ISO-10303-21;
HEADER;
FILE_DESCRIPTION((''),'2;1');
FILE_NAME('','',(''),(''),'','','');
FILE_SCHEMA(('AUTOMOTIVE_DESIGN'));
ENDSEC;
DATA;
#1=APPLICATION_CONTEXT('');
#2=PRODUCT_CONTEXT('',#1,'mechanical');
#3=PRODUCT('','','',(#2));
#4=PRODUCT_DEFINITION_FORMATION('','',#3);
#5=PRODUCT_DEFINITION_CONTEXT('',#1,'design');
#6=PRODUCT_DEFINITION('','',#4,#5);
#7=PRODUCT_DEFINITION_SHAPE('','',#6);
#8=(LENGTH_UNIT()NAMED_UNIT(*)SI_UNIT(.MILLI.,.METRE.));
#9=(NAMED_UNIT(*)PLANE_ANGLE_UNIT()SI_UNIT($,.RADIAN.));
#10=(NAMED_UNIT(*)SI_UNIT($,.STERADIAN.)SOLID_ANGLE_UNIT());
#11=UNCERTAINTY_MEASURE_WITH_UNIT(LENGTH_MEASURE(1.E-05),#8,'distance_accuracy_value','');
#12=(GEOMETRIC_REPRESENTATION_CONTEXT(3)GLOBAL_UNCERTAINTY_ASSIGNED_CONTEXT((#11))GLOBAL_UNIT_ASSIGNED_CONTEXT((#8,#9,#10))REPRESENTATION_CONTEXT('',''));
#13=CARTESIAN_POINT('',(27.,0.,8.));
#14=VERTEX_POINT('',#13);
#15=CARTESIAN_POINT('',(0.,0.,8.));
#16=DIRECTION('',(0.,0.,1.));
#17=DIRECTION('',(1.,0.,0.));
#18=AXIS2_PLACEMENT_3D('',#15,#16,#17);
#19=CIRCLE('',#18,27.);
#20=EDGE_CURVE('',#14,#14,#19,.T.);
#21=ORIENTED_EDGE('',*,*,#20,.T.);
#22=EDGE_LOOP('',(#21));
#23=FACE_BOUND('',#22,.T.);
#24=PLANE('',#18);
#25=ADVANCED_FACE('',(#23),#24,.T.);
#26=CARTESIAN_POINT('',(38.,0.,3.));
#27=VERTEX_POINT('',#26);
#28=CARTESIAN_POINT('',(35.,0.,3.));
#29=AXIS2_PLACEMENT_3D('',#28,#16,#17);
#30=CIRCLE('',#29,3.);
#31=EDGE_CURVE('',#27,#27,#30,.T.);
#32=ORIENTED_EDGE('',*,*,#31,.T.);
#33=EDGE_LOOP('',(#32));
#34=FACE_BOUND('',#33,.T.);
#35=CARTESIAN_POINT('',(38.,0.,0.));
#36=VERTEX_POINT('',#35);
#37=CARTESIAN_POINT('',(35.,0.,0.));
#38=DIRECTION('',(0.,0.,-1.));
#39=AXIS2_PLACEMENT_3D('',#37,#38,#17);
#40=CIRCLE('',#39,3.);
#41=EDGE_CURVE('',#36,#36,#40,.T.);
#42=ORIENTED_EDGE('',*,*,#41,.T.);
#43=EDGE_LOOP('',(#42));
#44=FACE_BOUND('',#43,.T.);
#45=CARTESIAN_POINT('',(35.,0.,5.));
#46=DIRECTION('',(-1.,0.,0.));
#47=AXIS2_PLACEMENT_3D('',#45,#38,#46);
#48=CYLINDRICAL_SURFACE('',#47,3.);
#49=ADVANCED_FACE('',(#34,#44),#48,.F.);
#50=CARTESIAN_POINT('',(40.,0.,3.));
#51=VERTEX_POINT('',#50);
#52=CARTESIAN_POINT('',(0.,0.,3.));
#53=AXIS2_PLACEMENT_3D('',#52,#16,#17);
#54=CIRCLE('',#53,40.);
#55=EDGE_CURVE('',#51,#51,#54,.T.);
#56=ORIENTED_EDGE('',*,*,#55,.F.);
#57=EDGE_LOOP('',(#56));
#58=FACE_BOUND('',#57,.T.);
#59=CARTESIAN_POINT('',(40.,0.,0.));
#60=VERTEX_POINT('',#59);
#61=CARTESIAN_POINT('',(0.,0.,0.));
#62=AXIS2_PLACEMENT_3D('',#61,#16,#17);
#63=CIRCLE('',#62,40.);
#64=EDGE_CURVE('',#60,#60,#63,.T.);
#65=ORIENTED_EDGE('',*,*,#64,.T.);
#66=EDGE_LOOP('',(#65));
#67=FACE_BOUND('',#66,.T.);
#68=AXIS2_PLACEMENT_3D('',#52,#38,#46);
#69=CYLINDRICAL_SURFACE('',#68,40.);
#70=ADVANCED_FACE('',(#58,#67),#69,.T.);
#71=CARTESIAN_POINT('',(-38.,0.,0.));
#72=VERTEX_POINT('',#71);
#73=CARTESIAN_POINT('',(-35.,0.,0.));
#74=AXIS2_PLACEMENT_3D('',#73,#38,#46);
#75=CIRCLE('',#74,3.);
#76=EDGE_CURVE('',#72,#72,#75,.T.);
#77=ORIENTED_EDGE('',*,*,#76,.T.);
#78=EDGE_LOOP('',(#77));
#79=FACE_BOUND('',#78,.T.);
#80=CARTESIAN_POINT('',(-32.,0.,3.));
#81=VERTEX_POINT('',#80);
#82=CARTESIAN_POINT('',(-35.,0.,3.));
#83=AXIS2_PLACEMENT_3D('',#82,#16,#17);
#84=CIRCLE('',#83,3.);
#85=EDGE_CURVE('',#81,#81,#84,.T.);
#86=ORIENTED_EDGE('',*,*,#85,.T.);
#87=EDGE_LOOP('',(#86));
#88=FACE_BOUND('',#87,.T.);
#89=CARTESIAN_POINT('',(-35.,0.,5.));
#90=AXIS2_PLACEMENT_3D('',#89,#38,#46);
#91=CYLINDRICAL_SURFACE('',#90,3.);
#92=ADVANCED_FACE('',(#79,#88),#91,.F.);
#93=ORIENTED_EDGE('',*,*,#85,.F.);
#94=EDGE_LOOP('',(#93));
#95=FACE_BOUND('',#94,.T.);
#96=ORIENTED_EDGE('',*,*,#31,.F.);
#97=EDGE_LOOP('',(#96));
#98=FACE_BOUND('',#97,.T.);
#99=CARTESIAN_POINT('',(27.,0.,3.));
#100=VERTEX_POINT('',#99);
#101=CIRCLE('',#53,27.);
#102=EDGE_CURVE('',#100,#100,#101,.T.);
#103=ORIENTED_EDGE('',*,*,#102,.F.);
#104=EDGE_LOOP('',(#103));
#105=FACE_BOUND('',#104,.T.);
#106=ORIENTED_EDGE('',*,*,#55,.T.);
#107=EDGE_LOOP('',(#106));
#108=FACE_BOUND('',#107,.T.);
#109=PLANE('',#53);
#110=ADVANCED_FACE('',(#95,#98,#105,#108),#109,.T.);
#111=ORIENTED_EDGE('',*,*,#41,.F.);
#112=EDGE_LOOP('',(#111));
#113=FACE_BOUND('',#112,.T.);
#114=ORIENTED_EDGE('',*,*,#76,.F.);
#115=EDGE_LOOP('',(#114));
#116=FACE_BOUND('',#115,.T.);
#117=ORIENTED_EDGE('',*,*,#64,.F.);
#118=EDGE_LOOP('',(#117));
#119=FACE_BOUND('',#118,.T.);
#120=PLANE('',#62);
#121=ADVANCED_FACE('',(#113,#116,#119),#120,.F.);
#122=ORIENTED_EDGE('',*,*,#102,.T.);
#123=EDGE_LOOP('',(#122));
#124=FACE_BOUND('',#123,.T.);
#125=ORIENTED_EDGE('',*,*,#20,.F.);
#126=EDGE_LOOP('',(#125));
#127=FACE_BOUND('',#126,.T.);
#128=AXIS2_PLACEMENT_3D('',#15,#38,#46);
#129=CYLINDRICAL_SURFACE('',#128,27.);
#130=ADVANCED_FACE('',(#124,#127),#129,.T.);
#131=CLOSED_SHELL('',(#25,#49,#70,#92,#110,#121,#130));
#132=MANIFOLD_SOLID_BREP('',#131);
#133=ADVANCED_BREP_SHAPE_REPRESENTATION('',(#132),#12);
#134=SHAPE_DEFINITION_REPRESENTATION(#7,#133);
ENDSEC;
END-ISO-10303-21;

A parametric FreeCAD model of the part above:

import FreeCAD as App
import Part
import Sketcher
from FreeCAD import Vector

doc = App.newDocument("Part")
body = doc.addObject("PartDesign::Body", "Body")

# Sketch on XY plane
sketch1 = body.newObject("Sketcher::SketchObject", "Sketch")
sketch1.AttachmentSupport = (doc.getObject("XY_Plane"), [""])
sketch1.MapMode = "FlatFace"
sketch1.addGeometry(Part.Circle(Vector(0, 0, 0), Vector(0, 0, 1), 40), False)
sketch1.addConstraint([
    Sketcher.Constraint("Coincident", 0, 3, -1, 1),
    Sketcher.Constraint("Diameter", 0, 80.0),
])
pad1 = body.newObject("PartDesign::Pad", "Pad")
pad1.Profile = sketch1
pad1.Length = 3

# Sketch on XY plane
sketch2 = body.newObject("Sketcher::SketchObject", "Sketch001")
sketch2.AttachmentSupport = (doc.getObject("XY_Plane"), [""])
sketch2.MapMode = "FlatFace"
sketch2.AttachmentOffset = App.Placement(Vector(0, 0, 3), App.Rotation())
sketch2.addGeometry(Part.Circle(Vector(0, 0, 0), Vector(0, 0, 1), 27), False)
sketch2.addConstraint([
    Sketcher.Constraint("Coincident", 0, 3, -1, 1),
    Sketcher.Constraint("Diameter", 0, 54.0),
])
pad2 = body.newObject("PartDesign::Pad", "Pad001")
pad2.Profile = sketch2
pad2.Length = 5

# Sketch on XY plane
sketch3 = body.newObject("Sketcher::SketchObject", "Sketch002")
sketch3.AttachmentSupport = (doc.getObject("XY_Plane"), [""])
sketch3.MapMode = "FlatFace"
sketch3.addGeometry([
    Part.Circle(Vector(-35, 0, 0), Vector(0, 0, 1), 3),
    Part.Circle(Vector(35, 0, 0), Vector(0, 0, 1), 3),
], False)
sketch3.addConstraint([
    Sketcher.Constraint("Equal", 0, 1),
    Sketcher.Constraint("Symmetric", 0, 3, 1, 3, -1, 1),
    Sketcher.Constraint("PointOnObject", 0, 3, -1),
    Sketcher.Constraint("Diameter", 0, 6.0),
    Sketcher.Constraint("DistanceX", 0, 3, -1, 1, 35.0),
])
pocket1 = body.newObject("PartDesign::Pocket", "Pocket")
pocket1.Profile = sketch3
pocket1.Length = 5
pocket1.Reversed = True

doc.recompute()
